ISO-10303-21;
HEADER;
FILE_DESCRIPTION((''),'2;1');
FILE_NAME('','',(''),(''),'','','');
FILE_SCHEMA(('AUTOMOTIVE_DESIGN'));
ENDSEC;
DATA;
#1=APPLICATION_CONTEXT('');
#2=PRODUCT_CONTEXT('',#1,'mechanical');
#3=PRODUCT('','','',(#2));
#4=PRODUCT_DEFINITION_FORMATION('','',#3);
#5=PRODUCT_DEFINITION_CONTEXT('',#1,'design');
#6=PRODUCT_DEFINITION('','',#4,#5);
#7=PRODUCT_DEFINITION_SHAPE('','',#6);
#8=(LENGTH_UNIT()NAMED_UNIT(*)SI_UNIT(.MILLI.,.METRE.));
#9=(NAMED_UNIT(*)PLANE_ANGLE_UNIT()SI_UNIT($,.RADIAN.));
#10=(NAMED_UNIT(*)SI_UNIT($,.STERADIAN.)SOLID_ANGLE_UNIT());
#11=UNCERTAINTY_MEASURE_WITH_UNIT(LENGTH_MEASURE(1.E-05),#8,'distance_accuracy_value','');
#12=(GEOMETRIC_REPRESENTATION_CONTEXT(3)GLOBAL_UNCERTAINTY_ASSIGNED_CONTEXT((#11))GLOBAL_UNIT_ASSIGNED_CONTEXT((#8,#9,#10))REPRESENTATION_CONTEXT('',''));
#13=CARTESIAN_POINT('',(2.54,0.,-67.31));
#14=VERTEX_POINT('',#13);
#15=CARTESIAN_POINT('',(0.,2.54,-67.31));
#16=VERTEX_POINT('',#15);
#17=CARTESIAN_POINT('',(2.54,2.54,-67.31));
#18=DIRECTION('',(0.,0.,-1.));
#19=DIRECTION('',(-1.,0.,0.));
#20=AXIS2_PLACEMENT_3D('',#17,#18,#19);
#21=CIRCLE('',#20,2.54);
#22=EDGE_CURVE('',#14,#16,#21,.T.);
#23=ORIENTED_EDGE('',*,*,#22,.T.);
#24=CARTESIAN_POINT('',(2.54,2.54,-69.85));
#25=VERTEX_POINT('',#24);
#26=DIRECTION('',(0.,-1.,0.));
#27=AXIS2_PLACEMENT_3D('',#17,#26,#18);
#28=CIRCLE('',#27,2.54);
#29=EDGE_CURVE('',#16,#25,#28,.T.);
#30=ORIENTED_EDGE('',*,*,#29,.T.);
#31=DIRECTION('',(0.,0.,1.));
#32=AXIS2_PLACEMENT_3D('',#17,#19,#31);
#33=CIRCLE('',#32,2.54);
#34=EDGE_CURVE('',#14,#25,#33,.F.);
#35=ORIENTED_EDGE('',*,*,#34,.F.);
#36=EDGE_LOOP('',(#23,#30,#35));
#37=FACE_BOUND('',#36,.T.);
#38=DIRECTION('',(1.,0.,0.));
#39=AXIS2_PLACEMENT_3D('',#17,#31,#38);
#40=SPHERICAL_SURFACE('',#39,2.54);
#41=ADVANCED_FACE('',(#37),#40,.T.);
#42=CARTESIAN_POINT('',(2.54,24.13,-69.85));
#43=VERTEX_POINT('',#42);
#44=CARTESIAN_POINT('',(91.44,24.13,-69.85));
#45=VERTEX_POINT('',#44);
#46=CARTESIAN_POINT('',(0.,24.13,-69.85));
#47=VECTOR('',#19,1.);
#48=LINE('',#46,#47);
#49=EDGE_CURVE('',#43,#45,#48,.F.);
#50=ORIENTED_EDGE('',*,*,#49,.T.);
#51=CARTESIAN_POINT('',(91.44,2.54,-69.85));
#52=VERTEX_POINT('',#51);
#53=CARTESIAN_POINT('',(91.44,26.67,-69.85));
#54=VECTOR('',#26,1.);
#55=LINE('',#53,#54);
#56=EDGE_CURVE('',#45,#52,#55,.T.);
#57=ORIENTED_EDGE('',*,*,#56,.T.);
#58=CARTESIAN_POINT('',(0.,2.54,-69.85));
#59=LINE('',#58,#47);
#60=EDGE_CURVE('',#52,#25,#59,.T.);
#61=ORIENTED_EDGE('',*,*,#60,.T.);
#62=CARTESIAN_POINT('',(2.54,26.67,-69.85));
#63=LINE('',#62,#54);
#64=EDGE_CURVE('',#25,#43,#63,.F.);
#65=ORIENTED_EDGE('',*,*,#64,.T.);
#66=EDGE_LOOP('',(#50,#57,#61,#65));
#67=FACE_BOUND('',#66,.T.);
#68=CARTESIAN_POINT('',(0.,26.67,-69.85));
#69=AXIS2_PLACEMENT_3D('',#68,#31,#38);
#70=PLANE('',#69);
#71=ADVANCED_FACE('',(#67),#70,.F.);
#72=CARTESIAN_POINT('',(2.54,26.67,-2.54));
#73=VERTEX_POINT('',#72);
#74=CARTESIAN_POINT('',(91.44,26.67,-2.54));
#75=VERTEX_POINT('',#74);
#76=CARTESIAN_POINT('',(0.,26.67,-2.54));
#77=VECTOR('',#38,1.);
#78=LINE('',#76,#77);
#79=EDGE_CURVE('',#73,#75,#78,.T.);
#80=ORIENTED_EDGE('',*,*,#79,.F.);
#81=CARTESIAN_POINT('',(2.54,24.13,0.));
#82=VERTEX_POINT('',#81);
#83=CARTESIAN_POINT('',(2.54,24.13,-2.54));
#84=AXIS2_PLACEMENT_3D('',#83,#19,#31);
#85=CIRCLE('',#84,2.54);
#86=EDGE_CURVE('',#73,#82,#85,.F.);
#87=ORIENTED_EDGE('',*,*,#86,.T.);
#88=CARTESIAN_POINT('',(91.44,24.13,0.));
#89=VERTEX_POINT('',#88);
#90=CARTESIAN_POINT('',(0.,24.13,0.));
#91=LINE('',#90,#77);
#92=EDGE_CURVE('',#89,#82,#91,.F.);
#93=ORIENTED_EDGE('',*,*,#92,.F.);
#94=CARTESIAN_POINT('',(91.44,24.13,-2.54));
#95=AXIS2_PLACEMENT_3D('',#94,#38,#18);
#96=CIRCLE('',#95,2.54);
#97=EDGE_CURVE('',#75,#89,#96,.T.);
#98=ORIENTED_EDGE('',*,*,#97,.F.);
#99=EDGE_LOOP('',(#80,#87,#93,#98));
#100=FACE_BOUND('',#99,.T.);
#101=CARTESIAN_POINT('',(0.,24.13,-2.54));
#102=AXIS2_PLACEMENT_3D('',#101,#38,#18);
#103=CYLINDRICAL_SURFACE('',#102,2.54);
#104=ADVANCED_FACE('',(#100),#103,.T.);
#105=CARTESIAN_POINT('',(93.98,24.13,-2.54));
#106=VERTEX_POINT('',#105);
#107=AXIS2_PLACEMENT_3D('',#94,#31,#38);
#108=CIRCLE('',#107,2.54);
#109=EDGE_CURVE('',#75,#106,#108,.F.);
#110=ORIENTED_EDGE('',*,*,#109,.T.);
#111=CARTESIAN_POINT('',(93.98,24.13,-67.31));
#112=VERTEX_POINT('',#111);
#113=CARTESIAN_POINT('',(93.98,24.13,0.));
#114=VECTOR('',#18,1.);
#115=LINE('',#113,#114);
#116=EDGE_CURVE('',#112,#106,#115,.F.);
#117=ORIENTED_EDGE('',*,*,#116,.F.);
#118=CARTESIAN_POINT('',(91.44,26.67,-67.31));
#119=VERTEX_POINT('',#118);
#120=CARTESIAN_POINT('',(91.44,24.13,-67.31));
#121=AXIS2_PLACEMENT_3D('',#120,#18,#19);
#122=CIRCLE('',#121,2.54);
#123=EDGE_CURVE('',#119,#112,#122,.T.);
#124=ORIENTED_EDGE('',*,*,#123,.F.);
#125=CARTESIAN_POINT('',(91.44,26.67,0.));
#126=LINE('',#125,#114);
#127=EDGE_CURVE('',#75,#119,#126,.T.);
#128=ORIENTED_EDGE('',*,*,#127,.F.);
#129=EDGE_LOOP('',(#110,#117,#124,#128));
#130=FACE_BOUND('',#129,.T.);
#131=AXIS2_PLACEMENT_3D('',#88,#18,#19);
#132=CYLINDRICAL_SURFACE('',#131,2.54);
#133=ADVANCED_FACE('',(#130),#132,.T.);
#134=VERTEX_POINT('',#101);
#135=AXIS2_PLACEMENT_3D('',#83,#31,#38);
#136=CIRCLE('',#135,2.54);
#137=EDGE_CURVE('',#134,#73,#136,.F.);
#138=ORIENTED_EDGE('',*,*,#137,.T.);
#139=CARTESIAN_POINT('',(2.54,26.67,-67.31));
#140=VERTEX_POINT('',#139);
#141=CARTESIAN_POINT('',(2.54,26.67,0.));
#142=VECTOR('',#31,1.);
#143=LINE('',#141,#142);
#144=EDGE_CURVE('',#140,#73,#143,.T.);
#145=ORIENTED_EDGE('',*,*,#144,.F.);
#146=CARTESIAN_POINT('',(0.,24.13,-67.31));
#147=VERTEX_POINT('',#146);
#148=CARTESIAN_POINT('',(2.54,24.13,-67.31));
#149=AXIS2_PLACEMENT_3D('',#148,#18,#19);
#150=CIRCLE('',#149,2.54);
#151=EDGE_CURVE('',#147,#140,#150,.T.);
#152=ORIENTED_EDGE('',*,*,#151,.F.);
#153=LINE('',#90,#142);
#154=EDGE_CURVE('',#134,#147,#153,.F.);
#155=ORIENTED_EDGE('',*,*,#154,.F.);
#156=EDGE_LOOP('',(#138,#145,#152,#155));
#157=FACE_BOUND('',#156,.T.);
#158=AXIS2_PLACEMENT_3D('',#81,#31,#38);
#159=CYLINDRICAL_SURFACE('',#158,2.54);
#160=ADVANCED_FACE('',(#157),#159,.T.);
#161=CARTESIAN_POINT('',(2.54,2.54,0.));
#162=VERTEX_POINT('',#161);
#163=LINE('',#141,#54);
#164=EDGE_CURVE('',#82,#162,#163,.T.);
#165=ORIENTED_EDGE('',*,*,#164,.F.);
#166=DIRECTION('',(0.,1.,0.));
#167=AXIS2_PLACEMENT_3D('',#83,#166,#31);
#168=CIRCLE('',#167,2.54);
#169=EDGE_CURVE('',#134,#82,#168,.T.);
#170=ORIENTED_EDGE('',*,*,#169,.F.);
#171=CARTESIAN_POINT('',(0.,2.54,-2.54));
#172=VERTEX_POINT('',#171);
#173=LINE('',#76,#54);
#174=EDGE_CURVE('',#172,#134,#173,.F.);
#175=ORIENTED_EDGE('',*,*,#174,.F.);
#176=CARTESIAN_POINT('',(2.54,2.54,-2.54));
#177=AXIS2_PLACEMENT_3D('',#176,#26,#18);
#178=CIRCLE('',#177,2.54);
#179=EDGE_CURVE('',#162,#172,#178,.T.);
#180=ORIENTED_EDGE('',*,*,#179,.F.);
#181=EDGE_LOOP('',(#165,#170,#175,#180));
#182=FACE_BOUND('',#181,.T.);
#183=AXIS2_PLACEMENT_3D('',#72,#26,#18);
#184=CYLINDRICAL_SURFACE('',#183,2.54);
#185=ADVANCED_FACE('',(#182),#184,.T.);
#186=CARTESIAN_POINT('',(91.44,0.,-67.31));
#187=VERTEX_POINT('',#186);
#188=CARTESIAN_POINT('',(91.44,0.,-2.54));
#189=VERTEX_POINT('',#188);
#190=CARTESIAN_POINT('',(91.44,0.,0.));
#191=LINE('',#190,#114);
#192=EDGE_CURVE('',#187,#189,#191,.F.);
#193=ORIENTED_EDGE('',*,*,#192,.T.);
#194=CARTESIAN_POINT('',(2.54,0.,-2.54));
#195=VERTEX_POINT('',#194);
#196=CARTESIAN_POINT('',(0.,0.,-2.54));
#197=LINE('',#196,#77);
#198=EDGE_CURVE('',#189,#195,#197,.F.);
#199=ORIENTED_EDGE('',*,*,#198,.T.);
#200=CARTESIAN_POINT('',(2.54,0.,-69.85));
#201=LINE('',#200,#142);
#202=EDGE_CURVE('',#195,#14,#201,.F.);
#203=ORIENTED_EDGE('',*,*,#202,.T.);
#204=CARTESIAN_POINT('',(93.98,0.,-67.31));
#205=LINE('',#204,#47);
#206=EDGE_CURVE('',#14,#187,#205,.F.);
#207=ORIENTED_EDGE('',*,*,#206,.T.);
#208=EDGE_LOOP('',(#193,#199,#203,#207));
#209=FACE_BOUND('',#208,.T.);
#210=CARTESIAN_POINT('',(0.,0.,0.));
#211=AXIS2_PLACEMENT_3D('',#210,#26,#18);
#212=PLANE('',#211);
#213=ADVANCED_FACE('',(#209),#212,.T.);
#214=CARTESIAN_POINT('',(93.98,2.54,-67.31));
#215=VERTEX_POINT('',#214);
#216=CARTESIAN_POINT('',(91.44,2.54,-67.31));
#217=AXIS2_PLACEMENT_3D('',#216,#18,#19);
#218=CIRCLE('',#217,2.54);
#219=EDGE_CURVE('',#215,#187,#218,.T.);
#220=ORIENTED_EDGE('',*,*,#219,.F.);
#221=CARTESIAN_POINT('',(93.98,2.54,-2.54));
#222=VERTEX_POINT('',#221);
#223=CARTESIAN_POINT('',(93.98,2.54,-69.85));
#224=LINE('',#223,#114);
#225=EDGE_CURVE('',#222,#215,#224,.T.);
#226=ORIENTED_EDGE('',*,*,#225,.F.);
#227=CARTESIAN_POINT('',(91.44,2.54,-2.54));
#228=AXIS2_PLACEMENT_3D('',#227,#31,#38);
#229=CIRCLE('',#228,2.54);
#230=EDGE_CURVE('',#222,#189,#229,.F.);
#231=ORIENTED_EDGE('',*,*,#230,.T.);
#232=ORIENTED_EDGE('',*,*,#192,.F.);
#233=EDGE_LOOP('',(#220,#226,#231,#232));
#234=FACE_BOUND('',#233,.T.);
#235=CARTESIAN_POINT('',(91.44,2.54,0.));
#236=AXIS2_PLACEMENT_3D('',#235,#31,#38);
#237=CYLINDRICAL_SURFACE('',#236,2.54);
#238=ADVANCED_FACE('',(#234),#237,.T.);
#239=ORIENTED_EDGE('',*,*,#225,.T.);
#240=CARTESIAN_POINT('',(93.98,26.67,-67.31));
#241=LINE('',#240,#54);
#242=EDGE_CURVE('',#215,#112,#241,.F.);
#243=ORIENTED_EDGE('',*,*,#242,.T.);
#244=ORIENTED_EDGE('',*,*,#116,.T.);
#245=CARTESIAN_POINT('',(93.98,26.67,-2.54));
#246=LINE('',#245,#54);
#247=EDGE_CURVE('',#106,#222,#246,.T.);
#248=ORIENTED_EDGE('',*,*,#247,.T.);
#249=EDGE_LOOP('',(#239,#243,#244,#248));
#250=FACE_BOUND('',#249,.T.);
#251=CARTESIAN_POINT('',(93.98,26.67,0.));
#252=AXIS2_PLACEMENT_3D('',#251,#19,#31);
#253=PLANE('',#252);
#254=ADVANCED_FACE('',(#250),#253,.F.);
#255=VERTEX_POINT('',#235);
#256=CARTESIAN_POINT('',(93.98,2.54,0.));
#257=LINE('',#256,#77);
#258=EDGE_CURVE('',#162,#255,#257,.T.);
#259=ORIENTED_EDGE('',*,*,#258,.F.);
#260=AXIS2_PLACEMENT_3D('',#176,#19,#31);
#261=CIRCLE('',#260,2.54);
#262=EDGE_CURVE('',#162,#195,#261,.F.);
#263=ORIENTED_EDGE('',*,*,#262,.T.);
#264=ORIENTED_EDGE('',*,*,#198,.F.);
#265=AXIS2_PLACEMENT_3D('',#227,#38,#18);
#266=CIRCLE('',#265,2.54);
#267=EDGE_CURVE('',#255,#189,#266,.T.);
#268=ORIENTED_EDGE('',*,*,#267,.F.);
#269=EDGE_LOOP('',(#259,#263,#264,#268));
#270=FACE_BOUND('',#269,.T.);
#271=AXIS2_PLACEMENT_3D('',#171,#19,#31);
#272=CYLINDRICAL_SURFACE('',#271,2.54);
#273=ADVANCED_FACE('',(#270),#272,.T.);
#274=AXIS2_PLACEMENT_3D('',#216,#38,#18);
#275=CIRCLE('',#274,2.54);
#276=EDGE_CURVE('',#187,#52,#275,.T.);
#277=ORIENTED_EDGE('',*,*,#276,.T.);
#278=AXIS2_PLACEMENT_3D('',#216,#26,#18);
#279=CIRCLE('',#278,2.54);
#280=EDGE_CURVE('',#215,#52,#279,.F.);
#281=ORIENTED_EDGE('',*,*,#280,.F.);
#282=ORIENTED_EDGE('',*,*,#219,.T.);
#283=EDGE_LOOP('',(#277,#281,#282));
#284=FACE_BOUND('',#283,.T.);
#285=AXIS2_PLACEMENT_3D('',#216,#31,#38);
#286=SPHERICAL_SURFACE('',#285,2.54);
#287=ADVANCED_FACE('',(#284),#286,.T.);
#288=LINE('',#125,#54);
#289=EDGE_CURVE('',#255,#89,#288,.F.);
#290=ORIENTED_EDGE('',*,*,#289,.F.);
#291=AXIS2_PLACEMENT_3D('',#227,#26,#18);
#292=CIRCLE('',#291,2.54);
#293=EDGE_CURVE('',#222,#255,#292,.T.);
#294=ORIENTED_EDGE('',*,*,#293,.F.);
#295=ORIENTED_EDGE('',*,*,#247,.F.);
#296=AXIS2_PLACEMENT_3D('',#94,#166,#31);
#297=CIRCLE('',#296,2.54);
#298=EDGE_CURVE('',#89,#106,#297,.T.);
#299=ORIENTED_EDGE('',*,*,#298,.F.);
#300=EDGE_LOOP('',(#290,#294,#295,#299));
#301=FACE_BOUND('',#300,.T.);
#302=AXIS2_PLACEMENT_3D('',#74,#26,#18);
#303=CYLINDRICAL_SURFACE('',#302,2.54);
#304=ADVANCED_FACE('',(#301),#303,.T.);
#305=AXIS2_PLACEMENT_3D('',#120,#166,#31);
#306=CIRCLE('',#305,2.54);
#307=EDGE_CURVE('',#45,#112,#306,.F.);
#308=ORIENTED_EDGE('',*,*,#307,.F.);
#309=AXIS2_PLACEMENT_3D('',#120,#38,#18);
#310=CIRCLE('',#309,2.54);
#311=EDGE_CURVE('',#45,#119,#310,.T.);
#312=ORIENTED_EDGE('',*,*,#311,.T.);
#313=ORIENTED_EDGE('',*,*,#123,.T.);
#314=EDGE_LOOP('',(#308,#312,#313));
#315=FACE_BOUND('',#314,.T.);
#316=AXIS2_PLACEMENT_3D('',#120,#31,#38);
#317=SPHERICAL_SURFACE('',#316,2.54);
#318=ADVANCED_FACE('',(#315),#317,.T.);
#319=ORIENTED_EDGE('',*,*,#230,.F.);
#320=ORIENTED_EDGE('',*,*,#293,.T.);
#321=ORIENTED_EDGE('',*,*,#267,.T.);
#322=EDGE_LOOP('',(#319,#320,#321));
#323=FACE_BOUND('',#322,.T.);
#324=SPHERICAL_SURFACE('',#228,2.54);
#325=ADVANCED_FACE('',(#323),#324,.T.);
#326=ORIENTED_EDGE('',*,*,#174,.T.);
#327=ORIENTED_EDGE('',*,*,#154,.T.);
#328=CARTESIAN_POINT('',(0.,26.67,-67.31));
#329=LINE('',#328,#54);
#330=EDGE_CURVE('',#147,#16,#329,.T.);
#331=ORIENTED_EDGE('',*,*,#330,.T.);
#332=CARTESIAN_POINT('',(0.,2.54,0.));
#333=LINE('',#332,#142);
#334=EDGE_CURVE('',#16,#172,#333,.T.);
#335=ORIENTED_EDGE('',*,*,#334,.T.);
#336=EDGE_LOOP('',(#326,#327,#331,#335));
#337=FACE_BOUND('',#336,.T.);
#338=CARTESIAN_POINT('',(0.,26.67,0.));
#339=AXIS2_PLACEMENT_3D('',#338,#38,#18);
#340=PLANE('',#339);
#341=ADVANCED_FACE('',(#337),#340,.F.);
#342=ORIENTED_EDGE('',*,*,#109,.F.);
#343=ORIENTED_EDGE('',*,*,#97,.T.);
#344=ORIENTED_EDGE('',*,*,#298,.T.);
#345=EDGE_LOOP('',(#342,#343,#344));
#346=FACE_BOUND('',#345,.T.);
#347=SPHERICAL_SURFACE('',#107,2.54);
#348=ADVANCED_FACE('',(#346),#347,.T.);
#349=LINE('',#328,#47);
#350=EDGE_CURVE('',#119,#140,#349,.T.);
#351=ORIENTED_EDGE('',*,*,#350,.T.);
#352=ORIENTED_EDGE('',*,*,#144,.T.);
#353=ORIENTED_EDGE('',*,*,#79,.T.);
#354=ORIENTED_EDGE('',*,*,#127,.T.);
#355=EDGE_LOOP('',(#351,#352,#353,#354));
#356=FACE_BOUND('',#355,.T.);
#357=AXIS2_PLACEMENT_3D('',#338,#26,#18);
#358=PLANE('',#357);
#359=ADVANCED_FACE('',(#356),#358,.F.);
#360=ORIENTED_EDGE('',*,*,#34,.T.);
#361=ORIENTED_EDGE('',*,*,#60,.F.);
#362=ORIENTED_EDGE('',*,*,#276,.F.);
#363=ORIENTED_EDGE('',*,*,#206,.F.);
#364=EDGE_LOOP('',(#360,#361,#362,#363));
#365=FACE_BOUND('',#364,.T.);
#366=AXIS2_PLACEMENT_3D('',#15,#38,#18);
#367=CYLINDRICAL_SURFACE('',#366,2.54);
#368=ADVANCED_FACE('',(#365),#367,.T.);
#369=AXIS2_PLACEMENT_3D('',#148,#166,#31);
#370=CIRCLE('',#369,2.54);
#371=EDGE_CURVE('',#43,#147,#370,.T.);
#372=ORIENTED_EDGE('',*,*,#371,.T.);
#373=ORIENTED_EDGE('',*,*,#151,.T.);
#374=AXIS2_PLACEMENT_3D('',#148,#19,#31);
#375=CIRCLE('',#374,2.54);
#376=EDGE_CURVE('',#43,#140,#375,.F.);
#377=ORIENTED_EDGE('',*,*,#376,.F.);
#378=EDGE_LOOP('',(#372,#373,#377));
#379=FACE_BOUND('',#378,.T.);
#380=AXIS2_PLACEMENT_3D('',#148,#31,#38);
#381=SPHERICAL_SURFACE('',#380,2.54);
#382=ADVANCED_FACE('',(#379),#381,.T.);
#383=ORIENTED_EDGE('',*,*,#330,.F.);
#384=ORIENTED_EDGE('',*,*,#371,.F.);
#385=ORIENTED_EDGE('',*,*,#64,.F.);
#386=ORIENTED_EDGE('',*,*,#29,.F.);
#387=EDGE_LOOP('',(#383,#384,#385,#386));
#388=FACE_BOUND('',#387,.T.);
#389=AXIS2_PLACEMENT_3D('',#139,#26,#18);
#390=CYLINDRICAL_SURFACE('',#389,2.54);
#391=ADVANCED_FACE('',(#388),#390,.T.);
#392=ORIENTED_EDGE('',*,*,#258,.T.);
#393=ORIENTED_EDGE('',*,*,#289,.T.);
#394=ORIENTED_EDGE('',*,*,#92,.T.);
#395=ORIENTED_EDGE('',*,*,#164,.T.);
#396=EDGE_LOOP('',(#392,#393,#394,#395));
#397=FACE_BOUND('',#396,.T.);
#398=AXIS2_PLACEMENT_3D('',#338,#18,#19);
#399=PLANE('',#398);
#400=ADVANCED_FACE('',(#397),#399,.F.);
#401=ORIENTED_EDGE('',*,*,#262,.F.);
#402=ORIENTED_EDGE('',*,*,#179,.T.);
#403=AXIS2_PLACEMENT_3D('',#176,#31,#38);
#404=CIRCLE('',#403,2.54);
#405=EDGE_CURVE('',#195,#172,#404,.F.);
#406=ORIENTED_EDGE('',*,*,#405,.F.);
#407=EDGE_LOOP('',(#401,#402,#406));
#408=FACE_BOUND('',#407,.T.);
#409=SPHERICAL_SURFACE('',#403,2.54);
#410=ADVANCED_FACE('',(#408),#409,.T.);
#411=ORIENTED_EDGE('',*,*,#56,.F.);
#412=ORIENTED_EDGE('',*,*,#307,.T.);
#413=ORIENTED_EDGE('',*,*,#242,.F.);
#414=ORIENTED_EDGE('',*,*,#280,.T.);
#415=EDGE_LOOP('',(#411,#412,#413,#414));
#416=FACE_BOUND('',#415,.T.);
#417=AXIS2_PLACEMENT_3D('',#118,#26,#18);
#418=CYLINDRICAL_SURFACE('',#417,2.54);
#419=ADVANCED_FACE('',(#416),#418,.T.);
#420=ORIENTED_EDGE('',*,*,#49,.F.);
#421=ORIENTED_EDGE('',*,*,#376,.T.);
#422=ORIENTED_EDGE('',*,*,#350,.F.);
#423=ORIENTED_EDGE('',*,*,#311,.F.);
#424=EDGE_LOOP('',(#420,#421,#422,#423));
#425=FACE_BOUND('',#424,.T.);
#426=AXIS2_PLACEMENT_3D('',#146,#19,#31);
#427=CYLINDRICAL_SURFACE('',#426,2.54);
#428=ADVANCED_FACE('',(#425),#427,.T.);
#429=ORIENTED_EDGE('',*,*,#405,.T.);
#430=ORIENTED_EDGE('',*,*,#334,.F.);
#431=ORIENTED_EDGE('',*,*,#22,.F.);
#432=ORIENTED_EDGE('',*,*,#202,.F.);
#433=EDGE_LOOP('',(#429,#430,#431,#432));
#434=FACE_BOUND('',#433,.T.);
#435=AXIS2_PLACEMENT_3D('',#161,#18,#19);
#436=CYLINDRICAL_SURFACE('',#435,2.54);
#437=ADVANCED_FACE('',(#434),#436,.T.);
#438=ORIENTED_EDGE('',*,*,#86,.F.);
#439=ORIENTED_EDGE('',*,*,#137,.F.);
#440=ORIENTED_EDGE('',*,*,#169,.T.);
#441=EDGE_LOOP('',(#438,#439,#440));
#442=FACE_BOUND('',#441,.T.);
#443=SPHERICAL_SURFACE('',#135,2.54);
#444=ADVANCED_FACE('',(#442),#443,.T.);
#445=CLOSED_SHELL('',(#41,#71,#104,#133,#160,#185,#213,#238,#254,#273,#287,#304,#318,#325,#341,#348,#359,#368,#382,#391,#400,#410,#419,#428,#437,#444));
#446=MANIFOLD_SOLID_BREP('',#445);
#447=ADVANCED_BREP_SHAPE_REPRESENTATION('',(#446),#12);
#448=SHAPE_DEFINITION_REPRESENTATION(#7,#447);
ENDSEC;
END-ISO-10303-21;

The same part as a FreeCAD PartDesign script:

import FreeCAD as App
import Part
import Sketcher
from FreeCAD import Vector
Q = App.Units.Quantity


def add_polygon(sketch, points):
    """Adds a closed chain of lines whose ends are joined by coincident constraints."""
    first, n = sketch.GeometryCount, len(points)
    for a, b in zip(points, points[1:] + points[:1]):
        sketch.addGeometry(Part.LineSegment(App.Vector(*a, 0), App.Vector(*b, 0)), False)
    for i in range(n):
        sketch.addConstraint(Sketcher.Constraint("Coincident", first + i, 2, first + (i + 1) % n, 1))

doc = App.newDocument("Part")
body = doc.addObject("PartDesign::Body", "Body")

# Sketch on XZ plane
sketch1 = body.newObject("Sketcher::SketchObject", "Sketch")
sketch1.AttachmentSupport = (doc.getObject("XZ_Plane"), [""])
sketch1.MapMode = "FlatFace"
add_polygon(sketch1, [(0, -70), (0, 0), (94, 0), (94, -70)])  # lines 0-3
sketch1.addConstraint([
    Sketcher.Constraint("Vertical", 0),
    Sketcher.Constraint("Horizontal", 1),
    Sketcher.Constraint("Vertical", 2),
    Sketcher.Constraint("Horizontal", 3),
    Sketcher.Constraint("Coincident", 0, 2, -1, 1),
    Sketcher.Constraint("DistanceX", 1, 1, 1, 2, Q("3.7 in")),
    Sketcher.Constraint("DistanceY", 0, 1, 0, 2, Q("2.75 in")),
])
pad1 = body.newObject("PartDesign::Pad", "Pad")
pad1.Profile = sketch1
pad1.Length = Q("1.05 in")
pad1.Reversed = True
doc.recompute()

fillet = body.newObject("PartDesign::Fillet", "Fillet")
fillet.Base = (pad1, ["Edge1"])
fillet.UseAllEdges = True
fillet.Radius = Q("0.1 in")

doc.recompute()
